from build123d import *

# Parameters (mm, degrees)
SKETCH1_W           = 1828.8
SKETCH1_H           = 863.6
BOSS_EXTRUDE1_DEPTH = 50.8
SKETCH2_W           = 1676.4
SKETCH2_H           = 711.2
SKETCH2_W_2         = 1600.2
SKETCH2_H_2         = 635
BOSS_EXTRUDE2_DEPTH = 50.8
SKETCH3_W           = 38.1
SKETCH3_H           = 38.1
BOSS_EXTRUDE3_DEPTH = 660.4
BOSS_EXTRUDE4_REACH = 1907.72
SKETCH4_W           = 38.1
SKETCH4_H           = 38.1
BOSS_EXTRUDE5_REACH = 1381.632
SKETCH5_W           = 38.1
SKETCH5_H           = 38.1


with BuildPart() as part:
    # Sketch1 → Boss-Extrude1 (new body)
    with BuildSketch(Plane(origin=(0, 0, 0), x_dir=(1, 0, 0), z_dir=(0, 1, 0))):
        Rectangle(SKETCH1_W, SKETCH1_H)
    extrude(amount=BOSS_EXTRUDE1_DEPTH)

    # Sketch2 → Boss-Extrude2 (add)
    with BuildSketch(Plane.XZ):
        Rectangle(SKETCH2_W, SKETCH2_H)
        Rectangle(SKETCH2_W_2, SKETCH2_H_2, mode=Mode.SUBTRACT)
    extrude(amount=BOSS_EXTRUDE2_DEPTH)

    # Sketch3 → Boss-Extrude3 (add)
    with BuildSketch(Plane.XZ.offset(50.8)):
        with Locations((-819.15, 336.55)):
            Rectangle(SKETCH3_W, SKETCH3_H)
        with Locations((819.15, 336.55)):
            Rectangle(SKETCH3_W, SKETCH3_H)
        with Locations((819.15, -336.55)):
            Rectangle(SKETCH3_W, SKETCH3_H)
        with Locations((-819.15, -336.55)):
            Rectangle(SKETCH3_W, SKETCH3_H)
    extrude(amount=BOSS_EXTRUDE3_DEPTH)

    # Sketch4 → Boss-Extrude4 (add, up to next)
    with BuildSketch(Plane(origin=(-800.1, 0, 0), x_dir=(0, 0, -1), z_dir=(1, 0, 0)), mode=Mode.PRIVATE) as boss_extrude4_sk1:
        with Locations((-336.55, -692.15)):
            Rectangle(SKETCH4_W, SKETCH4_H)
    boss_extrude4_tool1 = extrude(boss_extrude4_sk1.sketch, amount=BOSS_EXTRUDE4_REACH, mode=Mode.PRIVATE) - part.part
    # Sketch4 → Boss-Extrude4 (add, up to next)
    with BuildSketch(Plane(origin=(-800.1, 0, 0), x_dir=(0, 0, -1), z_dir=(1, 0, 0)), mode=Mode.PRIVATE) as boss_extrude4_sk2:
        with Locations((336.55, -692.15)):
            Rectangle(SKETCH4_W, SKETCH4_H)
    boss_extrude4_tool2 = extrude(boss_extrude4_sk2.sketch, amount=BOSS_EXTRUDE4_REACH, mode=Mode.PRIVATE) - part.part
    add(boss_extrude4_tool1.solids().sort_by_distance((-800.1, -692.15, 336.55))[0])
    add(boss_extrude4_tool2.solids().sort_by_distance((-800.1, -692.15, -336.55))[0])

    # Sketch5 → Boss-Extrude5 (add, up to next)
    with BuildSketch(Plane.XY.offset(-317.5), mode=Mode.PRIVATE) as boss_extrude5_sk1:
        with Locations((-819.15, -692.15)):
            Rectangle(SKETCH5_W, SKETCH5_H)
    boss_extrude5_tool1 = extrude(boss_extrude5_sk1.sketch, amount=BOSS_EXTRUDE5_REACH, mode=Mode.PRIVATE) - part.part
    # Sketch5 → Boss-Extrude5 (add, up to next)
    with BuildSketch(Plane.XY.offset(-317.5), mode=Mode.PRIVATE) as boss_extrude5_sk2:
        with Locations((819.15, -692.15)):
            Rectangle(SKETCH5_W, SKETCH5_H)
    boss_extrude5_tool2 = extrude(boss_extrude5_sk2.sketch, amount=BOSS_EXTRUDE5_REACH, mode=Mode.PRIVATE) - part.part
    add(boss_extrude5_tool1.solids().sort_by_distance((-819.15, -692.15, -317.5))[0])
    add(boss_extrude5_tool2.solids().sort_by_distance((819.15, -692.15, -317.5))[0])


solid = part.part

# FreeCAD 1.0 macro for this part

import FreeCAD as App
import Part
import Sketcher
Q = App.Units.Quantity

doc = App.newDocument("Part")
params = doc.addObject("Spreadsheet::Sheet", "Params")
for row, (alias, value) in enumerate([
    ("sketch1_width", "72 in"),
    ("sketch1_height", "34 in"),
    ("pad1_length", "2 in"),
    ("sketch2_width", "66 in"),
    ("sketch2_width2", "63 in"),
    ("sketch2_height", "28 in"),
    ("sketch2_height2", "25 in"),
    ("pad2_length", "2 in"),
    ("sketch3_width", "1.5 in"),
    ("pad3_length", "26 in"),
    ("sketch4_width", "1.5 in"),
    ("sketch5_width", "1.5 in"),
    ("sketch6_width", "1.5 in"),
    ("sketch7_width", "1.5 in"),
], start=1):
    params.set(f"A{row}", alias)
    params.set(f"B{row}", "=" + value)
    params.setAlias(f"B{row}", alias)

body = doc.addObject("PartDesign::Body", "Body")

# Sketch on XZ plane
sketch1 = doc.addObject("Sketcher::SketchObject", "Sketch")
body.addObject(sketch1)
sketch1.AttachmentSupport = (doc.XZ_Plane, [""])
sketch1.MapMode = "FlatFace"
sketch1.addGeometry([
    Part.LineSegment(App.Vector(-914, -432, 0), App.Vector(-914, 432, 0)),
    Part.LineSegment(App.Vector(-914, 432, 0), App.Vector(914, 432, 0)),
    Part.LineSegment(App.Vector(914, 432, 0), App.Vector(914, -432, 0)),
    Part.LineSegment(App.Vector(914, -432, 0), App.Vector(-914, -432, 0)),
], False)
sketch1.addConstraint([
    Sketcher.Constraint("Coincident", 0, 2, 1, 1),
    Sketcher.Constraint("Coincident", 1, 2, 2, 1),
    Sketcher.Constraint("Coincident", 2, 2, 3, 1),
    Sketcher.Constraint("Coincident", 3, 2, 0, 1),
    Sketcher.Constraint("Vertical", 0),
    Sketcher.Constraint("Horizontal", 1),
    Sketcher.Constraint("Vertical", 2),
    Sketcher.Constraint("Horizontal", 3),
    Sketcher.Constraint("Symmetric", 0, 2, 2, 2, -1, 1),
    Sketcher.Constraint("DistanceX", 1, 1, 1, 2, Q("72 in")),
    Sketcher.Constraint("DistanceY", 0, 1, 0, 2, Q("34 in")),
])
sketch1.setExpression("Constraints[9]", "Params.sketch1_width")
sketch1.setExpression("Constraints[10]", "Params.sketch1_height")
pad1 = doc.addObject("PartDesign::Pad", "Pad")
body.addObject(pad1)
pad1.Profile = sketch1
pad1.setExpression("Length", "Params.pad1_length")
pad1.Reversed = True

# Sketch on XZ plane
sketch2 = doc.addObject("Sketcher::SketchObject", "Sketch001")
body.addObject(sketch2)
sketch2.AttachmentSupport = (doc.XZ_Plane, [""])
sketch2.MapMode = "FlatFace"
sketch2.addGeometry([
    Part.LineSegment(App.Vector(-838, 356, 0), App.Vector(-838, -356, 0)),  # 0
    Part.LineSegment(App.Vector(-838, -356, 0), App.Vector(838, -356, 0)),  # 1
    Part.LineSegment(App.Vector(838, -356, 0), App.Vector(838, 356, 0)),  # 2
    Part.LineSegment(App.Vector(838, 356, 0), App.Vector(-838, 356, 0)),  # 3
    Part.LineSegment(App.Vector(800, -318, 0), App.Vector(-800, -318, 0)),  # 4
    Part.LineSegment(App.Vector(-800, -318, 0), App.Vector(-800, 318, 0)),  # 5
    Part.LineSegment(App.Vector(-800, 318, 0), App.Vector(800, 318, 0)),  # 6
    Part.LineSegment(App.Vector(800, 318, 0), App.Vector(800, -318, 0)),  # 7
], False)
sketch2.addConstraint([
    Sketcher.Constraint("Coincident", 0, 2, 1, 1),
    Sketcher.Constraint("Coincident", 1, 2, 2, 1),
    Sketcher.Constraint("Coincident", 2, 2, 3, 1),
    Sketcher.Constraint("Coincident", 3, 2, 0, 1),
    Sketcher.Constraint("Coincident", 4, 2, 5, 1),
    Sketcher.Constraint("Coincident", 5, 2, 6, 1),
    Sketcher.Constraint("Coincident", 6, 2, 7, 1),
    Sketcher.Constraint("Coincident", 7, 2, 4, 1),
    Sketcher.Constraint("Vertical", 0),
    Sketcher.Constraint("Horizontal", 1),
    Sketcher.Constraint("Vertical", 2),
    Sketcher.Constraint("Horizontal", 3),
    Sketcher.Constraint("Horizontal", 4),
    Sketcher.Constraint("Vertical", 5),
    Sketcher.Constraint("Horizontal", 6),
    Sketcher.Constraint("Vertical", 7),
    Sketcher.Constraint("Symmetric", 0, 2, 2, 2, -1, 1),
    Sketcher.Constraint("Symmetric", 4, 2, 6, 2, -1, 1),
    Sketcher.Constraint("DistanceX", 1, 1, 1, 2, Q("66 in")),
    Sketcher.Constraint("DistanceX", 4, 2, 4, 1, Q("63 in")),
    Sketcher.Constraint("DistanceY", 0, 2, 0, 1, Q("28 in")),
    Sketcher.Constraint("DistanceY", 5, 1, 5, 2, Q("25 in")),
])
sketch2.setExpression("Constraints[18]", "Params.sketch2_width")
sketch2.setExpression("Constraints[19]", "Params.sketch2_width2")
sketch2.setExpression("Constraints[20]", "Params.sketch2_height")
sketch2.setExpression("Constraints[21]", "Params.sketch2_height2")
pad2 = doc.addObject("PartDesign::Pad", "Pad001")
body.addObject(pad2)
pad2.Profile = sketch2
pad2.setExpression("Length", "Params.pad2_length")

# Sketch on XZ plane
sketch3 = doc.addObject("Sketcher::SketchObject", "Sketch002")
body.addObject(sketch3)
sketch3.AttachmentSupport = (doc.XZ_Plane, [""])
sketch3.MapMode = "FlatFace"
sketch3.AttachmentOffset = App.Placement(App.Vector(0, 0, 2 * 25.4), App.Rotation())
sketch3.addGeometry([
    Part.LineSegment(App.Vector(-838, 356, 0), App.Vector(-838, 318, 0)),  # 0
    Part.LineSegment(App.Vector(-838, 318, 0), App.Vector(-800, 318, 0)),  # 1
    Part.LineSegment(App.Vector(-800, 318, 0), App.Vector(-800, 356, 0)),  # 2
    Part.LineSegment(App.Vector(-800, 356, 0), App.Vector(-838, 356, 0)),  # 3
    Part.LineSegment(App.Vector(800, 356, 0), App.Vector(800, 318, 0)),  # 4
    Part.LineSegment(App.Vector(800, 318, 0), App.Vector(838, 318, 0)),  # 5
    Part.LineSegment(App.Vector(838, 318, 0), App.Vector(838, 356, 0)),  # 6
    Part.LineSegment(App.Vector(838, 356, 0), App.Vector(800, 356, 0)),  # 7
    Part.LineSegment(App.Vector(800, -318, 0), App.Vector(800, -356, 0)),  # 8
    Part.LineSegment(App.Vector(800, -356, 0), App.Vector(838, -356, 0)),  # 9
    Part.LineSegment(App.Vector(838, -356, 0), App.Vector(838, -318, 0)),  # 10
    Part.LineSegment(App.Vector(838, -318, 0), App.Vector(800, -318, 0)),  # 11
    Part.LineSegment(App.Vector(-838, -318, 0), App.Vector(-838, -356, 0)),  # 12
    Part.LineSegment(App.Vector(-838, -356, 0), App.Vector(-800, -356, 0)),  # 13
    Part.LineSegment(App.Vector(-800, -356, 0), App.Vector(-800, -318, 0)),  # 14
    Part.LineSegment(App.Vector(-800, -318, 0), App.Vector(-838, -318, 0)),  # 15
], False)
sketch3.addConstraint([
    Sketcher.Constraint("Coincident", 0, 2, 1, 1),
    Sketcher.Constraint("Coincident", 1, 2, 2, 1),
    Sketcher.Constraint("Coincident", 2, 2, 3, 1),
    Sketcher.Constraint("Coincident", 3, 2, 0, 1),
    Sketcher.Constraint("Coincident", 4, 2, 5, 1),
    Sketcher.Constraint("Coincident", 5, 2, 6, 1),
    Sketcher.Constraint("Coincident", 6, 2, 7, 1),
    Sketcher.Constraint("Coincident", 7, 2, 4, 1),
    Sketcher.Constraint("Coincident", 8, 2, 9, 1),
    Sketcher.Constraint("Coincident", 9, 2, 10, 1),
    Sketcher.Constraint("Coincident", 10, 2, 11, 1),
    Sketcher.Constraint("Coincident", 11, 2, 8, 1),
    Sketcher.Constraint("Coincident", 12, 2, 13, 1),
    Sketcher.Constraint("Coincident", 13, 2, 14, 1),
    Sketcher.Constraint("Coincident", 14, 2, 15, 1),
    Sketcher.Constraint("Coincident", 15, 2, 12, 1),
    Sketcher.Constraint("Vertical", 0),
    Sketcher.Constraint("Horizontal", 1),
    Sketcher.Constraint("Vertical", 2),
    Sketcher.Constraint("Horizontal", 3),
    Sketcher.Constraint("Vertical", 4),
    Sketcher.Constraint("Horizontal", 5),
    Sketcher.Constraint("Vertical", 6),
    Sketcher.Constraint("Horizontal", 7),
    Sketcher.Constraint("Vertical", 8),
    Sketcher.Constraint("Horizontal", 9),
    Sketcher.Constraint("Vertical", 10),
    Sketcher.Constraint("Horizontal", 11),
    Sketcher.Constraint("Vertical", 12),
    Sketcher.Constraint("Horizontal", 13),
    Sketcher.Constraint("Vertical", 14),
    Sketcher.Constraint("Horizontal", 15),
    Sketcher.Constraint("Symmetric", 2, 2, 8, 2, -1, 1),
    Sketcher.Constraint("Symmetric", 0, 2, 10, 2, -1, 1),
    Sketcher.Constraint("Symmetric", 6, 2, 12, 2, -1, 1),
    Sketcher.Constraint("Symmetric", 4, 2, 14, 2, -1, 1),
    Sketcher.Constraint("Symmetric", 1, 2, 4, 2, -2),
    Sketcher.Constraint("Symmetric", 3, 2, 6, 2, -2),
    Sketcher.Constraint("Equal", 15, 0),
    Sketcher.Constraint("DistanceX", 1, 1, 1, 2, Q("1.5 in")),
    Sketcher.Constraint("DistanceX", 0, 2, -1, 1, Q("33 in")),
    Sketcher.Constraint("DistanceY", -1, 1, 2, 2, Q("14 in")),
])
sketch3.setExpression("Constraints[39]", "Params.sketch3_width")
pad3 = doc.addObject("PartDesign::Pad", "Pad002")
body.addObject(pad3)
pad3.Profile = sketch3
pad3.setExpression("Length", "Params.pad3_length")

# Sketch on YZ plane
sketch4 = doc.addObject("Sketcher::SketchObject", "Sketch003")
body.addObject(sketch4)
sketch4.AttachmentSupport = (doc.YZ_Plane, [""])
sketch4.MapMode = "FlatFace"
sketch4.AttachmentOffset = App.Placement(App.Vector(0, 0, -31.5 * 25.4), App.Rotation())
sketch4.addGeometry([
    Part.LineSegment(App.Vector(-673, 356, 0), App.Vector(-711, 356, 0)),
    Part.LineSegment(App.Vector(-711, 356, 0), App.Vector(-711, 318, 0)),
    Part.LineSegment(App.Vector(-711, 318, 0), App.Vector(-673, 318, 0)),
    Part.LineSegment(App.Vector(-673, 318, 0), App.Vector(-673, 356, 0)),
], False)
sketch4.addConstraint([
    Sketcher.Constraint("Coincident", 0, 2, 1, 1),
    Sketcher.Constraint("Coincident", 1, 2, 2, 1),
    Sketcher.Constraint("Coincident", 2, 2, 3, 1),
    Sketcher.Constraint("Coincident", 3, 2, 0, 1),
    Sketcher.Constraint("Horizontal", 0),
    Sketcher.Constraint("Vertical", 1),
    Sketcher.Constraint("Horizontal", 2),
    Sketcher.Constraint("Vertical", 3),
    Sketcher.Constraint("Equal", 2, 1),
    Sketcher.Constraint("DistanceX", 0, 2, 0, 1, Q("1.5 in")),
    Sketcher.Constraint("DistanceX", 0, 2, -1, 1, Q("28 in")),
    Sketcher.Constraint("DistanceY", -1, 1, 0, 2, Q("14 in")),
])
sketch4.setExpression("Constraints[9]", "Params.sketch4_width")
pad4 = doc.addObject("PartDesign::Pad", "Pad003")
body.addObject(pad4)
pad4.Profile = sketch4
pad4.Type = "UpToFirst"

# Sketch on YZ plane
sketch5 = doc.addObject("Sketcher::SketchObject", "Sketch004")
body.addObject(sketch5)
sketch5.AttachmentSupport = (doc.YZ_Plane, [""])
sketch5.MapMode = "FlatFace"
sketch5.AttachmentOffset = App.Placement(App.Vector(0, 0, -31.5 * 25.4), App.Rotation())
sketch5.addGeometry([
    Part.LineSegment(App.Vector(-673, -318, 0), App.Vector(-711, -318, 0)),
    Part.LineSegment(App.Vector(-711, -318, 0), App.Vector(-711, -356, 0)),
    Part.LineSegment(App.Vector(-711, -356, 0), App.Vector(-673, -356, 0)),
    Part.LineSegment(App.Vector(-673, -356, 0), App.Vector(-673, -318, 0)),
], False)
sketch5.addConstraint([
    Sketcher.Constraint("Coincident", 0, 2, 1, 1),
    Sketcher.Constraint("Coincident", 1, 2, 2, 1),
    Sketcher.Constraint("Coincident", 2, 2, 3, 1),
    Sketcher.Constraint("Coincident", 3, 2, 0, 1),
    Sketcher.Constraint("Horizontal", 0),
    Sketcher.Constraint("Vertical", 1),
    Sketcher.Constraint("Horizontal", 2),
    Sketcher.Constraint("Vertical", 3),
    Sketcher.Constraint("Equal", 2, 1),
    Sketcher.Constraint("DistanceX", 0, 2, 0, 1, Q("1.5 in")),
    Sketcher.Constraint("DistanceX", 0, 2, -1, 1, Q("28 in")),
    Sketcher.Constraint("DistanceY", 1, 2, -1, 1, Q("14 in")),
])
sketch5.setExpression("Constraints[9]", "Params.sketch5_width")
pad5 = doc.addObject("PartDesign::Pad", "Pad004")
body.addObject(pad5)
pad5.Profile = sketch5
pad5.Type = "UpToFirst"

# Sketch on XY plane
sketch6 = doc.addObject("Sketcher::SketchObject", "Sketch005")
body.addObject(sketch6)
sketch6.AttachmentSupport = (doc.XY_Plane, [""])
sketch6.MapMode = "FlatFace"
sketch6.AttachmentOffset = App.Placement(App.Vector(0, 0, -12.5 * 25.4), App.Rotation())
sketch6.addGeometry([
    Part.LineSegment(App.Vector(-838, -673, 0), App.Vector(-838, -711, 0)),
    Part.LineSegment(App.Vector(-838, -711, 0), App.Vector(-800, -711, 0)),
    Part.LineSegment(App.Vector(-800, -711, 0), App.Vector(-800, -673, 0)),
    Part.LineSegment(App.Vector(-800, -673, 0), App.Vector(-838, -673, 0)),
], False)
sketch6.addConstraint([
    Sketcher.Constraint("Coincident", 0, 2, 1, 1),
    Sketcher.Constraint("Coincident", 1, 2, 2, 1),
    Sketcher.Constraint("Coincident", 2, 2, 3, 1),
    Sketcher.Constraint("Coincident", 3, 2, 0, 1),
    Sketcher.Constraint("Vertical", 0),
    Sketcher.Constraint("Horizontal", 1),
    Sketcher.Constraint("Vertical", 2),
    Sketcher.Constraint("Horizontal", 3),
    Sketcher.Constraint("Equal", 3, 0),
    Sketcher.Constraint("DistanceX", 1, 1, 1, 2, Q("1.5 in")),
    Sketcher.Constraint("DistanceX", 0, 2, -1, 1, Q("33 in")),
    Sketcher.Constraint("DistanceY", 0, 2, -1, 1, Q("28 in")),
])
sketch6.setExpression("Constraints[9]", "Params.sketch6_width")
pad6 = doc.addObject("PartDesign::Pad", "Pad005")
body.addObject(pad6)
pad6.Profile = sketch6
pad6.Type = "UpToFirst"

# Sketch on XY plane
sketch7 = doc.addObject("Sketcher::SketchObject", "Sketch006")
body.addObject(sketch7)
sketch7.AttachmentSupport = (doc.XY_Plane, [""])
sketch7.MapMode = "FlatFace"
sketch7.AttachmentOffset = App.Placement(App.Vector(0, 0, -12.5 * 25.4), App.Rotation())
sketch7.addGeometry([
    Part.LineSegment(App.Vector(800, -673, 0), App.Vector(800, -711, 0)),
    Part.LineSegment(App.Vector(800, -711, 0), App.Vector(838, -711, 0)),
    Part.LineSegment(App.Vector(838, -711, 0), App.Vector(838, -673, 0)),
    Part.LineSegment(App.Vector(838, -673, 0), App.Vector(800, -673, 0)),
], False)
sketch7.addConstraint([
    Sketcher.Constraint("Coincident", 0, 2, 1, 1),
    Sketcher.Constraint("Coincident", 1, 2, 2, 1),
    Sketcher.Constraint("Coincident", 2, 2, 3, 1),
    Sketcher.Constraint("Coincident", 3, 2, 0, 1),
    Sketcher.Constraint("Vertical", 0),
    Sketcher.Constraint("Horizontal", 1),
    Sketcher.Constraint("Vertical", 2),
    Sketcher.Constraint("Horizontal", 3),
    Sketcher.Constraint("Equal", 3, 0),
    Sketcher.Constraint("DistanceX", 1, 1, 1, 2, Q("1.5 in")),
    Sketcher.Constraint("DistanceY", 0, 2, -1, 1, Q("28 in")),
    Sketcher.Constraint("DistanceX", -1, 1, 1, 2, Q("33 in")),
])
sketch7.setExpression("Constraints[9]", "Params.sketch7_width")
pad7 = doc.addObject("PartDesign::Pad", "Pad006")
body.addObject(pad7)
pad7.Profile = sketch7
pad7.Type = "UpToFirst"

doc.recompute()
